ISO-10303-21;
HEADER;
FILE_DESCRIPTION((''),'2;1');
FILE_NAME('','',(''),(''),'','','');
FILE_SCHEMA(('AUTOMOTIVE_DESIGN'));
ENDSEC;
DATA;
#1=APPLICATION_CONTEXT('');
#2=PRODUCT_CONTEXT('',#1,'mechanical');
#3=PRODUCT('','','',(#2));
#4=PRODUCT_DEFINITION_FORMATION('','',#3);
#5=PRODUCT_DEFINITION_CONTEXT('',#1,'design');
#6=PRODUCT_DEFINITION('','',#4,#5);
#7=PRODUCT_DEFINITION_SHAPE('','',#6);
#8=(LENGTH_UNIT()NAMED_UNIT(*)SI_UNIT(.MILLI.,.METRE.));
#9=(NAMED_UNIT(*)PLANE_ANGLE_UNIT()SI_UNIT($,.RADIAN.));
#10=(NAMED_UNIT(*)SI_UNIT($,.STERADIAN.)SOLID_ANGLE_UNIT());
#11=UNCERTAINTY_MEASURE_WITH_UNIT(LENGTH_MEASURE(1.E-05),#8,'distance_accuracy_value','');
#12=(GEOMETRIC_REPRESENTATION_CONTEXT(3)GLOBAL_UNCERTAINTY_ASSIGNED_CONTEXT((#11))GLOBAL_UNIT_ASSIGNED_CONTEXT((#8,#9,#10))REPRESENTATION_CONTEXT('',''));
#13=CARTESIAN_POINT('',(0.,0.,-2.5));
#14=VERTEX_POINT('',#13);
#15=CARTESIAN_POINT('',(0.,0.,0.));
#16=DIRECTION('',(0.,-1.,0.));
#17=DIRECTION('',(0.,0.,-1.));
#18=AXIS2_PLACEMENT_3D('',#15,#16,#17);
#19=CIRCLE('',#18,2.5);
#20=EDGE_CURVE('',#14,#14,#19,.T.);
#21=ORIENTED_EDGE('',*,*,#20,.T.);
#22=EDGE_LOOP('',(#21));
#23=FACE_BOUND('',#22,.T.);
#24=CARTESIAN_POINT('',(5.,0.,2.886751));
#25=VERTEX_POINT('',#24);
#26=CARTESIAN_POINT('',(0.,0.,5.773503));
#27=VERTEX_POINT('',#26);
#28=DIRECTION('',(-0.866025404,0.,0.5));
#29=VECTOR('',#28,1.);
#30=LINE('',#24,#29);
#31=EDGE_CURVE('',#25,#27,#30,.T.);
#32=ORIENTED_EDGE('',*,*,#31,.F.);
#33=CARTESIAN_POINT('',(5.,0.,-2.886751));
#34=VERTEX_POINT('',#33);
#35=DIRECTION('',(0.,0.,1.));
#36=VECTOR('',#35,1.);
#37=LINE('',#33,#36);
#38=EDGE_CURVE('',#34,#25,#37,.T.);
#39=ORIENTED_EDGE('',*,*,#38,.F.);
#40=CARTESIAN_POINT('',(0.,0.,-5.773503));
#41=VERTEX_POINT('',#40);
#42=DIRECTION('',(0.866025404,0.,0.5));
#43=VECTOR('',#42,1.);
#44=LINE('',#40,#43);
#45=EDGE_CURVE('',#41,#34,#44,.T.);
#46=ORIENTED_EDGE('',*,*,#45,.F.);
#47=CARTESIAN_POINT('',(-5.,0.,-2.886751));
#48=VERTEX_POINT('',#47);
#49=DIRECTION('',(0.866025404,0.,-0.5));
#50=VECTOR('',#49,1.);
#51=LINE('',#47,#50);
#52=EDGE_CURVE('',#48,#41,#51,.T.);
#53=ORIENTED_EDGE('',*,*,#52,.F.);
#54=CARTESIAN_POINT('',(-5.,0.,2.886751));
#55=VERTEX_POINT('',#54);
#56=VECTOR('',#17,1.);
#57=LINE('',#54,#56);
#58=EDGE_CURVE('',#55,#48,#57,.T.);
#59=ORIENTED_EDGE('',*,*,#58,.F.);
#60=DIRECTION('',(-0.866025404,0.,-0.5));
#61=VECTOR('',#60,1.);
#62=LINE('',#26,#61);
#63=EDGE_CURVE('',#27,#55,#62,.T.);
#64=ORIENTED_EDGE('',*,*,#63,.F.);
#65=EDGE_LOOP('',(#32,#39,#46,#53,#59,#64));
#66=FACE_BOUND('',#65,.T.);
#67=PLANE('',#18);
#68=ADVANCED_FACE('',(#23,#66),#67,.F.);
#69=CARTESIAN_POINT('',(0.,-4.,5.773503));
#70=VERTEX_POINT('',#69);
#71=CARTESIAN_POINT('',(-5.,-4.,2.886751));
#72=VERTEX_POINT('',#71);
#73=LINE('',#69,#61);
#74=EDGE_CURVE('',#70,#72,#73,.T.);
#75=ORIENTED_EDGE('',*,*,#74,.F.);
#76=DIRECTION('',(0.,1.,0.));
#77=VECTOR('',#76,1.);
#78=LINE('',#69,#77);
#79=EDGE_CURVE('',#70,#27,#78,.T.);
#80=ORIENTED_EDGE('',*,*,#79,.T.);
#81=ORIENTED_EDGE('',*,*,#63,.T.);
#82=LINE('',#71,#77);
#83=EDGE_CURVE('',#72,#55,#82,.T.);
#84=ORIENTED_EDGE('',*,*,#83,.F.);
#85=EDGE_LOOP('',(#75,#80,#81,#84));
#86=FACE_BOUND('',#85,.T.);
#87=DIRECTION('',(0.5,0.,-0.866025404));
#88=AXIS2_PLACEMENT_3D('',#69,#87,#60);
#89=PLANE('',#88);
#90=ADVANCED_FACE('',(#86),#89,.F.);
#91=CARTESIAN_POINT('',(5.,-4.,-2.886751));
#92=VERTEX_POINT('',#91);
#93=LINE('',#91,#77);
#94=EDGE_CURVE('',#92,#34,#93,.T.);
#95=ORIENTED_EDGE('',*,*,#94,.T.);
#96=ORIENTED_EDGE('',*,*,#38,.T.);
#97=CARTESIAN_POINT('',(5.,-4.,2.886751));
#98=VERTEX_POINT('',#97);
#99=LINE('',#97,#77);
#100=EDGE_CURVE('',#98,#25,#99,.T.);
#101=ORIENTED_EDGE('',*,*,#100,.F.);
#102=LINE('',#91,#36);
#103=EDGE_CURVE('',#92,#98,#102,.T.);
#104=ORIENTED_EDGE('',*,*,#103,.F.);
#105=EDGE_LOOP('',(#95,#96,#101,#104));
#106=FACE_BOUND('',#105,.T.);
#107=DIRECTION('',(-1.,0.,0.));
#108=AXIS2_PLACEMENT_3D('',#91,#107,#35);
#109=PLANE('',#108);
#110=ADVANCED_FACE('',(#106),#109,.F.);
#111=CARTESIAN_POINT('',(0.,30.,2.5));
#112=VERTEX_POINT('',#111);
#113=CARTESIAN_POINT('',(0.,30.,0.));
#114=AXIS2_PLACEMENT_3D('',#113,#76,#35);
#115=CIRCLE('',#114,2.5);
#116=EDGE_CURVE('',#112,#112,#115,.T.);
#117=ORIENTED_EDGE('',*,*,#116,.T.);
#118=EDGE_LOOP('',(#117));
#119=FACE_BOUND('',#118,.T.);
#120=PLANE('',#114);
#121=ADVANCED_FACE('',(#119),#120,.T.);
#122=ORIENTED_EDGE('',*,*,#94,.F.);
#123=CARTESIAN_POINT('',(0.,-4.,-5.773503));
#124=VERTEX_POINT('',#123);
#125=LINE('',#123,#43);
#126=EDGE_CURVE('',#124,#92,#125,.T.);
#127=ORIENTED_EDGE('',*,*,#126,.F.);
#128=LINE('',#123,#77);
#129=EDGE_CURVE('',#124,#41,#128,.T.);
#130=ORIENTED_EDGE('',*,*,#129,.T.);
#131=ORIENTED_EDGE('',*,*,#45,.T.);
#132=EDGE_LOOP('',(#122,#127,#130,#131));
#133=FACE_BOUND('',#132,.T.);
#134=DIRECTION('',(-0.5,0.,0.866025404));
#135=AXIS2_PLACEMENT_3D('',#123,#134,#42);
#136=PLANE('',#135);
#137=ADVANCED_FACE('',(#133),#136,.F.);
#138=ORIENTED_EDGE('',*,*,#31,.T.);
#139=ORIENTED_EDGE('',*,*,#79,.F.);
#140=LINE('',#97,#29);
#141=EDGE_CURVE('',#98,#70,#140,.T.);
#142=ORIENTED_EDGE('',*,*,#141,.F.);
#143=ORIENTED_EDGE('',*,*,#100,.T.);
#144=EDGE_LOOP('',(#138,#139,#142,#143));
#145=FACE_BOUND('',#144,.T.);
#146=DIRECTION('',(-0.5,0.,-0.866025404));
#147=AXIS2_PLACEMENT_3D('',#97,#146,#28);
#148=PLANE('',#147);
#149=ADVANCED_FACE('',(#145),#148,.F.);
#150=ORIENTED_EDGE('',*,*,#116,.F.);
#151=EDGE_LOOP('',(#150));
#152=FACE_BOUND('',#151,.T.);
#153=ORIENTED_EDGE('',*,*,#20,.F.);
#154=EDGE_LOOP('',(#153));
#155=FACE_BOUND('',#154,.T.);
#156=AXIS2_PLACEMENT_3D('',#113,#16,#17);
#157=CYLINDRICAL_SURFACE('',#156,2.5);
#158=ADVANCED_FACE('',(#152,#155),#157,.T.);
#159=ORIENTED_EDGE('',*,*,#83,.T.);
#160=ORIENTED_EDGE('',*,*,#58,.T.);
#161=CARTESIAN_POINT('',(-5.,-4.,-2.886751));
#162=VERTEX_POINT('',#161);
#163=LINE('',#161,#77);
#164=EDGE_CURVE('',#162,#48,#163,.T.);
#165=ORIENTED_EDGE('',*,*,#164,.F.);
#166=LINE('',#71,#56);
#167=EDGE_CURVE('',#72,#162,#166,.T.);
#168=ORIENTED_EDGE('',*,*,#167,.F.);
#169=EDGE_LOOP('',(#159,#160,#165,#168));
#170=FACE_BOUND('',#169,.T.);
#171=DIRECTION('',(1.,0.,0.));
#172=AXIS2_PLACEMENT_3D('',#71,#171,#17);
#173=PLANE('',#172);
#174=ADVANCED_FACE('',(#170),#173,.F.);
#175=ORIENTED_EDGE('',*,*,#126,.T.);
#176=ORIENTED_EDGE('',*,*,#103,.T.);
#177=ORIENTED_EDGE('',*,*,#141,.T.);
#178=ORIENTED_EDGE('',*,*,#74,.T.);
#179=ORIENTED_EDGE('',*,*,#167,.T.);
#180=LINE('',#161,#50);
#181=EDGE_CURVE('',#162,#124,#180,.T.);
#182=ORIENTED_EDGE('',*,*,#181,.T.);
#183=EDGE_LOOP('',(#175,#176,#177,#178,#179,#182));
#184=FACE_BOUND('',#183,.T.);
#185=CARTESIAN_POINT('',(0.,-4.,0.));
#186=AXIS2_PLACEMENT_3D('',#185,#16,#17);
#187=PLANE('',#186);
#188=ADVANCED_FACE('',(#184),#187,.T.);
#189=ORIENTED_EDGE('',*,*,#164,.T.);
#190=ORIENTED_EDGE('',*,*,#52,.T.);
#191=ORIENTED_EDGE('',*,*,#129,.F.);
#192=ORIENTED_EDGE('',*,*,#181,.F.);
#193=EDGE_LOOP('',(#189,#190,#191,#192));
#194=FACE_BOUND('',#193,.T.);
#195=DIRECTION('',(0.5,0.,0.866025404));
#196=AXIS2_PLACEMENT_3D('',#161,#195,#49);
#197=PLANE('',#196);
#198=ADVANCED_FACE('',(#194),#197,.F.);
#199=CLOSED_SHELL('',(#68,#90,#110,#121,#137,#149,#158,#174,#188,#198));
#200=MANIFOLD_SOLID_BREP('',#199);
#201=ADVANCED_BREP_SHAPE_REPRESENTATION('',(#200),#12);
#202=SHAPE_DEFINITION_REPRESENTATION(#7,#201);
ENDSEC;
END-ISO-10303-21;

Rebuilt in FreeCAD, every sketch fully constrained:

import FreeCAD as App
import Part
import Sketcher
Q = App.Units.Quantity

doc = App.newDocument("Part")
body = doc.addObject("PartDesign::Body", "Body")

# Sketch on XZ plane
sketch1 = doc.addObject("Sketcher::SketchObject", "Sketch")
body.addObject(sketch1)
sketch1.AttachmentSupport = (doc.XZ_Plane, [""])
sketch1.MapMode = "FlatFace"
sketch1.addGeometry(Part.Circle(App.Vector(0, 0, 0), App.Vector(0, 0, 1), 2.5), False)
sketch1.addConstraint(Sketcher.Constraint("Coincident", 0, 3, -1, 1))
sketch1.addConstraint(Sketcher.Constraint("Diameter", 0, Q("5 mm")))
pad1 = doc.addObject("PartDesign::Pad", "Pad")
body.addObject(pad1)
pad1.Profile = sketch1
pad1.Length = 30
pad1.Reversed = True

# Sketch on XZ plane
sketch2 = doc.addObject("Sketcher::SketchObject", "Sketch001")
body.addObject(sketch2)
sketch2.AttachmentSupport = (doc.XZ_Plane, [""])
sketch2.MapMode = "FlatFace"
sketch2.addGeometry(Part.LineSegment(App.Vector(0, 5.773503, 0), App.Vector(-5, 2.886751, 0)), False)
sketch2.addGeometry(Part.LineSegment(App.Vector(-5, 2.886751, 0), App.Vector(-5, -2.886751, 0)), False)
sketch2.addGeometry(Part.LineSegment(App.Vector(-5, -2.886751, 0), App.Vector(0, -5.773503, 0)), False)
sketch2.addGeometry(Part.LineSegment(App.Vector(0, -5.773503, 0), App.Vector(5, -2.886751, 0)), False)
sketch2.addGeometry(Part.LineSegment(App.Vector(5, -2.886751, 0), App.Vector(5, 2.886751, 0)), False)
sketch2.addGeometry(Part.LineSegment(App.Vector(5, 2.886751, 0), App.Vector(0, 5.773503, 0)), False)
sketch2.addConstraint(Sketcher.Constraint("Coincident", 0, 2, 1, 1))
sketch2.addConstraint(Sketcher.Constraint("Coincident", 1, 2, 2, 1))
sketch2.addConstraint(Sketcher.Constraint("Coincident", 2, 2, 3, 1))
sketch2.addConstraint(Sketcher.Constraint("Coincident", 3, 2, 4, 1))
sketch2.addConstraint(Sketcher.Constraint("Coincident", 4, 2, 5, 1))
sketch2.addConstraint(Sketcher.Constraint("Coincident", 5, 2, 0, 1))
sketch2.addConstraint(Sketcher.Constraint("Vertical", 1))
sketch2.addConstraint(Sketcher.Constraint("Vertical", 4))
sketch2.addConstraint(Sketcher.Constraint("Symmetric", 0, 2, 3, 2, -1, 1))
sketch2.addConstraint(Sketcher.Constraint("Symmetric", 2, 2, 5, 2, -1, 1))
sketch2.addConstraint(Sketcher.Constraint("PointOnObject", 2, 2, -2))
sketch2.addConstraint(Sketcher.Constraint("Parallel", 2, 5))
sketch2.addConstraint(Sketcher.Constraint("Horizontal", 1, 2, 3, 2))
sketch2.addConstraint(Sketcher.Constraint("Angle", 0, Q("-150 deg")))
sketch2.addConstraint(Sketcher.Constraint("DistanceX", 0, 2, -1, 1, Q("5 mm")))
sketch2.addConstraint(Sketcher.Constraint("DistanceY", 1, 2, 1, 1, Q("5.773503 mm")))
pad2 = doc.addObject("PartDesign::Pad", "Pad001")
body.addObject(pad2)
pad2.Profile = sketch2
pad2.Length = 4

doc.recompute()
